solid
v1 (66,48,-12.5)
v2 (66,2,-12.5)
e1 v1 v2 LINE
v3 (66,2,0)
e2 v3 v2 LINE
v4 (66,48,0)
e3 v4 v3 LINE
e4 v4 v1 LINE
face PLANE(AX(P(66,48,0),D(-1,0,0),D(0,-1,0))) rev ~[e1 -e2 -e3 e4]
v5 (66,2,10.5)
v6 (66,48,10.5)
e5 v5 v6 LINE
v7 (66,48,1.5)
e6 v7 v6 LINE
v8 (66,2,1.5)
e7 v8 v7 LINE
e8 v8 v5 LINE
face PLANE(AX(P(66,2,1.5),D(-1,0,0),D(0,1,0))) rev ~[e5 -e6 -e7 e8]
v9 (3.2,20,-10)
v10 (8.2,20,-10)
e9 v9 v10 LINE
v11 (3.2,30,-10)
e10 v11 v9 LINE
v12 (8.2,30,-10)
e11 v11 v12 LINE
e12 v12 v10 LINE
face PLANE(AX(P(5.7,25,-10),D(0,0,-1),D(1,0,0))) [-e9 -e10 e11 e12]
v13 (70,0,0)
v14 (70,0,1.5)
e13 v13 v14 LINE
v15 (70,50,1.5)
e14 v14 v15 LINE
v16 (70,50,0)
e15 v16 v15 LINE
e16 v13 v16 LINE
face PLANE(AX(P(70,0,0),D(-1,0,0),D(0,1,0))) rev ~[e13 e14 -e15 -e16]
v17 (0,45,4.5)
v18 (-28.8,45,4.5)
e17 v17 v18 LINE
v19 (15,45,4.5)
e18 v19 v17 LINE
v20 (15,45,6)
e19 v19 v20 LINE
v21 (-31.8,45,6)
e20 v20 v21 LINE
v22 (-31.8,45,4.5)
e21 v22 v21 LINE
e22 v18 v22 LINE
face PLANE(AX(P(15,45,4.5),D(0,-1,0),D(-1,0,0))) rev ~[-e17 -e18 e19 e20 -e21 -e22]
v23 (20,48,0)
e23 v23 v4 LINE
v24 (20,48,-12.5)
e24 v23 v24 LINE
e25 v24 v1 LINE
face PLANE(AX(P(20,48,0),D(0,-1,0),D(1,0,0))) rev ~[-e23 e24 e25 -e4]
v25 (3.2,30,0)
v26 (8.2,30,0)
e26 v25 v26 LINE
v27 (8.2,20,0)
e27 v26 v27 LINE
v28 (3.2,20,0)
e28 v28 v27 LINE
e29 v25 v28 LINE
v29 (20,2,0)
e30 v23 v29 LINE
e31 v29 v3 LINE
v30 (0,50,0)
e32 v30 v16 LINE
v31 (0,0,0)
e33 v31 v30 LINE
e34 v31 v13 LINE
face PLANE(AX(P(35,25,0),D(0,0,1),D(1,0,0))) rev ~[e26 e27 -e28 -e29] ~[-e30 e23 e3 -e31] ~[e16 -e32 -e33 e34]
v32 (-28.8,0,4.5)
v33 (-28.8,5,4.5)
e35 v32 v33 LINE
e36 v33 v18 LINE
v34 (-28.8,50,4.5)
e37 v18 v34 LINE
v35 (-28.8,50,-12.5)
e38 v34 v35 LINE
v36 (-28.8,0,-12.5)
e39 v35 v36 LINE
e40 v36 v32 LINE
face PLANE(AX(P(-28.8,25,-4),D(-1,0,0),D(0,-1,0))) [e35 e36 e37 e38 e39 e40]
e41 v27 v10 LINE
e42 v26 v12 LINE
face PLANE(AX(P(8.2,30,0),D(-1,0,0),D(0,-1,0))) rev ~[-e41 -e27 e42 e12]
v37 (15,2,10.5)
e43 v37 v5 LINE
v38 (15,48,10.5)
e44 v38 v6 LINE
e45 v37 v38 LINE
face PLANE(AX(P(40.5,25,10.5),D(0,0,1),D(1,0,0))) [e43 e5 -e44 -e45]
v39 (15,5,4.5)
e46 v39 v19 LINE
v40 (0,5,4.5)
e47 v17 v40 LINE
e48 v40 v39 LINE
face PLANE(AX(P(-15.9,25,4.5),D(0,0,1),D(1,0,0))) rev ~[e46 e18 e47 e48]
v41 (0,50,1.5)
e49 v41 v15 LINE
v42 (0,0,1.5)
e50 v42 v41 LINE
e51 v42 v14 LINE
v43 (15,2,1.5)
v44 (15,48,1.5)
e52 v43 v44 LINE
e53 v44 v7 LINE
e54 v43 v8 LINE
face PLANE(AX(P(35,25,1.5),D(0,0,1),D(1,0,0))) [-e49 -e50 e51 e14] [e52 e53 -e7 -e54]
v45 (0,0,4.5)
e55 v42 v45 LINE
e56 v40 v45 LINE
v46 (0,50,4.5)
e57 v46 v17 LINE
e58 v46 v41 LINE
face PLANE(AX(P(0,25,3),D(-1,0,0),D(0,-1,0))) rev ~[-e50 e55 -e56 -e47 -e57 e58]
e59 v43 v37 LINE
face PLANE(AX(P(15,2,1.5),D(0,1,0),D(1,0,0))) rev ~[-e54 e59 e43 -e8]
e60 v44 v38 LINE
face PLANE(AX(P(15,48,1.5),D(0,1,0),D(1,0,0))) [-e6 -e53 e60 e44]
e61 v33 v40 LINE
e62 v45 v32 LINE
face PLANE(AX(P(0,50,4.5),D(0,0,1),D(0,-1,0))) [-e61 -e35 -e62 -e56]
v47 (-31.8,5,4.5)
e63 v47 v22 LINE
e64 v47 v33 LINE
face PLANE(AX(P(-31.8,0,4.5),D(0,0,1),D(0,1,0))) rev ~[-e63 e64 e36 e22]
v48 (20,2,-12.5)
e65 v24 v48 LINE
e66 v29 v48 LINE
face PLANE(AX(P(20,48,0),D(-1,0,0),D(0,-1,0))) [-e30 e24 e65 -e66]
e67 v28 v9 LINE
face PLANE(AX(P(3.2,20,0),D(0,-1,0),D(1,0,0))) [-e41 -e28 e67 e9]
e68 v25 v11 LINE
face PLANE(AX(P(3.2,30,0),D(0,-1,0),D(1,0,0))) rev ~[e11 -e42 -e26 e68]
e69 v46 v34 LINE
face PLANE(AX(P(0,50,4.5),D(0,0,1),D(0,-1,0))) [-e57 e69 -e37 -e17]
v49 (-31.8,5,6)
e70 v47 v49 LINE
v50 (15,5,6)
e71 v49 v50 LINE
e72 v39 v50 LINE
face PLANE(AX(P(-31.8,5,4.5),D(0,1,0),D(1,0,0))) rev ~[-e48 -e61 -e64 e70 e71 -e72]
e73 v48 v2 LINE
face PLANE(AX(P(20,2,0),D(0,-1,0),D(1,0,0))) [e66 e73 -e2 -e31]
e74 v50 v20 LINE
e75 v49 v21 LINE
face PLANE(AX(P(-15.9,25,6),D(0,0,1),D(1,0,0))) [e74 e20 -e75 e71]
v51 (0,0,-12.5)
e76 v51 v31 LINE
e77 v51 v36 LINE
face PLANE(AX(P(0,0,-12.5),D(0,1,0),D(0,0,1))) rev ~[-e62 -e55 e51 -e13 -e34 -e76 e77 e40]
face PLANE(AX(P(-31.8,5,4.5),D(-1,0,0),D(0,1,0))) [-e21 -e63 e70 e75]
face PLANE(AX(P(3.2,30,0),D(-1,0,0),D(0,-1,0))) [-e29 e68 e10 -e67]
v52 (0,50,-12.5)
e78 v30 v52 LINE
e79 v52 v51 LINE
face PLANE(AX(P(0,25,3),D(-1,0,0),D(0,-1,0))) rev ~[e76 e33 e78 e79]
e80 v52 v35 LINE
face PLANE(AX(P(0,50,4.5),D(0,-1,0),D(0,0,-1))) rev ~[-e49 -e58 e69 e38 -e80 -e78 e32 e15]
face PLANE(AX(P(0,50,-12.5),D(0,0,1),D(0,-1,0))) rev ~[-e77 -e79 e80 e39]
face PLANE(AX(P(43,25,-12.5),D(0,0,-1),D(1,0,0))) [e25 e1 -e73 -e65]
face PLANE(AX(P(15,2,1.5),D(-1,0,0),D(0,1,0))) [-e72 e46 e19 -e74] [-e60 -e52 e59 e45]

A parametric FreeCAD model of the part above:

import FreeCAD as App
import Part
import Sketcher

V = App.Vector
Q = App.Units.Quantity

doc = App.newDocument("Part")
params = doc.addObject("Spreadsheet::Sheet", "Params")
for row, (alias, value) in enumerate([
    ("sketch1_width", "70 mm"),
    ("sketch1_height", "50 mm"),
    ("pad1_length", "1.5 mm"),
    ("sketch2_width", "46 mm"),
    ("pad2_length", "12.5 mm"),
    ("sketch3_width", "5 mm"),
    ("sketch3_height", "10 mm"),
    ("pad3_length", "10 mm"),
    ("sketch4_width", "51 mm"),
    ("sketch4_height", "46 mm"),
    ("pad4_length", "9 mm"),
    ("sketch5_width", "50 mm"),
    ("sketch5_height", "17 mm"),
    ("pad5_length", "31.8 mm"),
    ("sketch6_height", "40 mm"),
    ("sketch6_width", "46.8 mm"),
    ("pad6_length", "1.5 mm"),
    ("sketch7_width", "50 mm"),
    ("sketch7_height", "17 mm"),
    ("pocket1_length", "3 mm"),
], start=1):
    params.set(f"A{row}", alias)
    params.set(f"B{row}", "=" + value)
    params.setAlias(f"B{row}", alias)

body = doc.addObject("PartDesign::Body", "Body")

sketch1 = body.newObject("Sketcher::SketchObject", "Sketch")
sketch1.AttachmentSupport = (doc.getObject("XY_Plane"), [""])
sketch1.MapMode = "FlatFace"
sketch1.addGeometry([
    Part.LineSegment(V(0, 50, 0), V(0, 0, 0)),
    Part.LineSegment(V(0, 0, 0), V(70, 0, 0)),
    Part.LineSegment(V(70, 0, 0), V(70, 50, 0)),
    Part.LineSegment(V(70, 50, 0), V(0, 50, 0)),
], False)
sketch1.addConstraint([
    Sketcher.Constraint("Coincident", 0, 2, 1, 1),
    Sketcher.Constraint("Coincident", 1, 2, 2, 1),
    Sketcher.Constraint("Coincident", 2, 2, 3, 1),
    Sketcher.Constraint("Coincident", 3, 2, 0, 1),
    Sketcher.Constraint("Vertical", 0),
    Sketcher.Constraint("Horizontal", 1),
    Sketcher.Constraint("Vertical", 2),
    Sketcher.Constraint("Horizontal", 3),
    Sketcher.Constraint("Coincident", 0, 2, -1, 1),
    Sketcher.Constraint("DistanceX", 1, 1, 1, 2, Q("70 mm")),
    Sketcher.Constraint("DistanceY", 0, 2, 0, 1, Q("50 mm")),
])
sketch1.setExpression("Constraints[9]", "Params.sketch1_width")
sketch1.setExpression("Constraints[10]", "Params.sketch1_height")
pad1 = body.newObject("PartDesign::Pad", "Pad")
pad1.Profile = sketch1
pad1.setExpression("Length", "Params.pad1_length")

sketch2 = body.newObject("Sketcher::SketchObject", "Sketch001")
sketch2.AttachmentSupport = (doc.getObject("XY_Plane"), [""])
sketch2.MapMode = "FlatFace"
sketch2.addGeometry([
    Part.LineSegment(V(20, 2, 0), V(20, 48, 0)),
    Part.LineSegment(V(20, 48, 0), V(66, 48, 0)),
    Part.LineSegment(V(66, 48, 0), V(66, 2, 0)),
    Part.LineSegment(V(66, 2, 0), V(20, 2, 0)),
], False)
sketch2.addConstraint([
    Sketcher.Constraint("Coincident", 0, 2, 1, 1),
    Sketcher.Constraint("Coincident", 1, 2, 2, 1),
    Sketcher.Constraint("Coincident", 2, 2, 3, 1),
    Sketcher.Constraint("Coincident", 3, 2, 0, 1),
    Sketcher.Constraint("Vertical", 0),
    Sketcher.Constraint("Horizontal", 1),
    Sketcher.Constraint("Vertical", 2),
    Sketcher.Constraint("Horizontal", 3),
    Sketcher.Constraint("Equal", 3, 0),
    Sketcher.Constraint("DistanceX", 1, 1, 1, 2, Q("46 mm")),
    Sketcher.Constraint("DistanceX", -1, 1, 0, 2, Q("20 mm")),
    Sketcher.Constraint("DistanceY", -1, 1, 0, 2, Q("48 mm")),
])
sketch2.setExpression("Constraints[9]", "Params.sketch2_width")
pad2 = body.newObject("PartDesign::Pad", "Pad001")
pad2.Profile = sketch2
pad2.setExpression("Length", "Params.pad2_length")
pad2.Reversed = True

sketch3 = body.newObject("Sketcher::SketchObject", "Sketch002")
sketch3.AttachmentSupport = (doc.getObject("XY_Plane"), [""])
sketch3.MapMode = "FlatFace"
sketch3.addGeometry([
    Part.LineSegment(V(3.2, 20, 0), V(3.2, 30, 0)),
    Part.LineSegment(V(3.2, 30, 0), V(8.2, 30, 0)),
    Part.LineSegment(V(8.2, 30, 0), V(8.2, 20, 0)),
    Part.LineSegment(V(8.2, 20, 0), V(3.2, 20, 0)),
], False)
sketch3.addConstraint([
    Sketcher.Constraint("Coincident", 0, 2, 1, 1),
    Sketcher.Constraint("Coincident", 1, 2, 2, 1),
    Sketcher.Constraint("Coincident", 2, 2, 3, 1),
    Sketcher.Constraint("Coincident", 3, 2, 0, 1),
    Sketcher.Constraint("Vertical", 0),
    Sketcher.Constraint("Horizontal", 1),
    Sketcher.Constraint("Vertical", 2),
    Sketcher.Constraint("Horizontal", 3),
    Sketcher.Constraint("DistanceX", 1, 1, 1, 2, Q("5 mm")),
    Sketcher.Constraint("DistanceY", 0, 1, 0, 2, Q("10 mm")),
    Sketcher.Constraint("DistanceY", -1, 1, 0, 2, Q("30 mm")),
    Sketcher.Constraint("DistanceX", -1, 1, 0, 2, Q("3.2 mm")),
])
sketch3.setExpression("Constraints[8]", "Params.sketch3_width")
sketch3.setExpression("Constraints[9]", "Params.sketch3_height")
pad3 = body.newObject("PartDesign::Pad", "Pad002")
pad3.Profile = sketch3
pad3.setExpression("Length", "Params.pad3_length")
pad3.Reversed = True

sketch4 = body.newObject("Sketcher::SketchObject", "Sketch003")
sketch4.AttachmentSupport = (doc.getObject("XY_Plane"), [""])
sketch4.MapMode = "FlatFace"
sketch4.AttachmentOffset = App.Placement(V(0, 0, 1.5), App.Rotation())
sketch4.addGeometry([
    Part.LineSegment(V(15, 48, 0), V(15, 2, 0)),
    Part.LineSegment(V(15, 2, 0), V(66, 2, 0)),
    Part.LineSegment(V(66, 2, 0), V(66, 48, 0)),
    Part.LineSegment(V(66, 48, 0), V(15, 48, 0)),
], False)
sketch4.addConstraint([
    Sketcher.Constraint("Coincident", 0, 2, 1, 1),
    Sketcher.Constraint("Coincident", 1, 2, 2, 1),
    Sketcher.Constraint("Coincident", 2, 2, 3, 1),
    Sketcher.Constraint("Coincident", 3, 2, 0, 1),
    Sketcher.Constraint("Vertical", 0),
    Sketcher.Constraint("Horizontal", 1),
    Sketcher.Constraint("Vertical", 2),
    Sketcher.Constraint("Horizontal", 3),
    Sketcher.Constraint("DistanceX", 1, 1, 1, 2, Q("51 mm")),
    Sketcher.Constraint("DistanceY", 0, 2, 0, 1, Q("46 mm")),
    Sketcher.Constraint("DistanceX", -1, 1, 0, 2, Q("15 mm")),
    Sketcher.Constraint("DistanceY", -1, 1, 0, 2, Q("2 mm")),
])
sketch4.setExpression("Constraints[8]", "Params.sketch4_width")
sketch4.setExpression("Constraints[9]", "Params.sketch4_height")
pad4 = body.newObject("PartDesign::Pad", "Pad003")
pad4.Profile = sketch4
pad4.setExpression("Length", "Params.pad4_length")

sketch5 = body.newObject("Sketcher::SketchObject", "Sketch004")
sketch5.AttachmentSupport = (doc.getObject("YZ_Plane"), [""])
sketch5.MapMode = "FlatFace"
sketch5.addGeometry([
    Part.LineSegment(V(50, 4.5, 0), V(50, -12.5, 0)),
    Part.LineSegment(V(50, -12.5, 0), V(0, -12.5, 0)),
    Part.LineSegment(V(0, -12.5, 0), V(0, 4.5, 0)),
    Part.LineSegment(V(0, 4.5, 0), V(50, 4.5, 0)),
], False)
sketch5.addConstraint([
    Sketcher.Constraint("Coincident", 0, 2, 1, 1),
    Sketcher.Constraint("Coincident", 1, 2, 2, 1),
    Sketcher.Constraint("Coincident", 2, 2, 3, 1),
    Sketcher.Constraint("Coincident", 3, 2, 0, 1),
    Sketcher.Constraint("Vertical", 0),
    Sketcher.Constraint("Horizontal", 1),
    Sketcher.Constraint("Vertical", 2),
    Sketcher.Constraint("Horizontal", 3),
    Sketcher.Constraint("PointOnObject", 1, 2, -2),
    Sketcher.Constraint("DistanceX", 1, 2, 1, 1, Q("50 mm")),
    Sketcher.Constraint("DistanceY", 0, 2, 0, 1, Q("17 mm")),
    Sketcher.Constraint("DistanceY", 0, 2, -1, 1, Q("12.5 mm")),
])
sketch5.setExpression("Constraints[9]", "Params.sketch5_width")
sketch5.setExpression("Constraints[10]", "Params.sketch5_height")
pad5 = body.newObject("PartDesign::Pad", "Pad004")
pad5.Profile = sketch5
pad5.setExpression("Length", "Params.pad5_length")
pad5.Reversed = True

sketch6 = body.newObject("Sketcher::SketchObject", "Sketch005")
sketch6.AttachmentSupport = (doc.getObject("XY_Plane"), [""])
sketch6.MapMode = "FlatFace"
sketch6.AttachmentOffset = App.Placement(V(0, 0, 4.5), App.Rotation())
sketch6.addGeometry([
    Part.LineSegment(V(-31.8, 45, 0), V(-31.8, 5, 0)),
    Part.LineSegment(V(-31.8, 5, 0), V(15, 5, 0)),
    Part.LineSegment(V(15, 5, 0), V(15, 45, 0)),
    Part.LineSegment(V(15, 45, 0), V(-31.8, 45, 0)),
], False)
sketch6.addConstraint([
    Sketcher.Constraint("Coincident", 0, 2, 1, 1),
    Sketcher.Constraint("Coincident", 1, 2, 2, 1),
    Sketcher.Constraint("Coincident", 2, 2, 3, 1),
    Sketcher.Constraint("Coincident", 3, 2, 0, 1),
    Sketcher.Constraint("Vertical", 0),
    Sketcher.Constraint("Horizontal", 1),
    Sketcher.Constraint("Vertical", 2),
    Sketcher.Constraint("Horizontal", 3),
    Sketcher.Constraint("DistanceY", 0, 2, 0, 1, Q("40 mm")),
    Sketcher.Constraint("DistanceX", 1, 1, 1, 2, Q("46.8 mm")),
    Sketcher.Constraint("DistanceY", -1, 1, 0, 2, Q("5 mm")),
    Sketcher.Constraint("DistanceX", -1, 1, 1, 2, Q("15 mm")),
])
sketch6.setExpression("Constraints[8]", "Params.sketch6_height")
sketch6.setExpression("Constraints[9]", "Params.sketch6_width")
pad6 = body.newObject("PartDesign::Pad", "Pad005")
pad6.Profile = sketch6
pad6.setExpression("Length", "Params.pad6_length")

sketch7 = body.newObject("Sketcher::SketchObject", "Sketch006")
sketch7.AttachmentSupport = (doc.getObject("YZ_Plane"), [""])
sketch7.MapMode = "FlatFace"
sketch7.AttachmentOffset = App.Placement(V(0, 0, -31.8), App.Rotation())
sketch7.addGeometry([
    Part.LineSegment(V(50, 4.5, 0), V(50, -12.5, 0)),
    Part.LineSegment(V(50, -12.5, 0), V(0, -12.5, 0)),
    Part.LineSegment(V(0, -12.5, 0), V(0, 4.5, 0)),
    Part.LineSegment(V(0, 4.5, 0), V(50, 4.5, 0)),
], False)
sketch7.addConstraint([
    Sketcher.Constraint("Coincident", 0, 2, 1, 1),
    Sketcher.Constraint("Coincident", 1, 2, 2, 1),
    Sketcher.Constraint("Coincident", 2, 2, 3, 1),
    Sketcher.Constraint("Coincident", 3, 2, 0, 1),
    Sketcher.Constraint("Vertical", 0),
    Sketcher.Constraint("Horizontal", 1),
    Sketcher.Constraint("Vertical", 2),
    Sketcher.Constraint("Horizontal", 3),
    Sketcher.Constraint("PointOnObject", 1, 2, -2),
    Sketcher.Constraint("DistanceX", 1, 2, 1, 1, Q("50 mm")),
    Sketcher.Constraint("DistanceY", 0, 2, 0, 1, Q("17 mm")),
    Sketcher.Constraint("DistanceY", 0, 2, -1, 1, Q("12.5 mm")),
])
sketch7.setExpression("Constraints[9]", "Params.sketch7_width")
sketch7.setExpression("Constraints[10]", "Params.sketch7_height")
pocket1 = body.newObject("PartDesign::Pocket", "Pocket")
pocket1.Profile = sketch7
pocket1.setExpression("Length", "Params.pocket1_length")
pocket1.Reversed = True

doc.recompute()
